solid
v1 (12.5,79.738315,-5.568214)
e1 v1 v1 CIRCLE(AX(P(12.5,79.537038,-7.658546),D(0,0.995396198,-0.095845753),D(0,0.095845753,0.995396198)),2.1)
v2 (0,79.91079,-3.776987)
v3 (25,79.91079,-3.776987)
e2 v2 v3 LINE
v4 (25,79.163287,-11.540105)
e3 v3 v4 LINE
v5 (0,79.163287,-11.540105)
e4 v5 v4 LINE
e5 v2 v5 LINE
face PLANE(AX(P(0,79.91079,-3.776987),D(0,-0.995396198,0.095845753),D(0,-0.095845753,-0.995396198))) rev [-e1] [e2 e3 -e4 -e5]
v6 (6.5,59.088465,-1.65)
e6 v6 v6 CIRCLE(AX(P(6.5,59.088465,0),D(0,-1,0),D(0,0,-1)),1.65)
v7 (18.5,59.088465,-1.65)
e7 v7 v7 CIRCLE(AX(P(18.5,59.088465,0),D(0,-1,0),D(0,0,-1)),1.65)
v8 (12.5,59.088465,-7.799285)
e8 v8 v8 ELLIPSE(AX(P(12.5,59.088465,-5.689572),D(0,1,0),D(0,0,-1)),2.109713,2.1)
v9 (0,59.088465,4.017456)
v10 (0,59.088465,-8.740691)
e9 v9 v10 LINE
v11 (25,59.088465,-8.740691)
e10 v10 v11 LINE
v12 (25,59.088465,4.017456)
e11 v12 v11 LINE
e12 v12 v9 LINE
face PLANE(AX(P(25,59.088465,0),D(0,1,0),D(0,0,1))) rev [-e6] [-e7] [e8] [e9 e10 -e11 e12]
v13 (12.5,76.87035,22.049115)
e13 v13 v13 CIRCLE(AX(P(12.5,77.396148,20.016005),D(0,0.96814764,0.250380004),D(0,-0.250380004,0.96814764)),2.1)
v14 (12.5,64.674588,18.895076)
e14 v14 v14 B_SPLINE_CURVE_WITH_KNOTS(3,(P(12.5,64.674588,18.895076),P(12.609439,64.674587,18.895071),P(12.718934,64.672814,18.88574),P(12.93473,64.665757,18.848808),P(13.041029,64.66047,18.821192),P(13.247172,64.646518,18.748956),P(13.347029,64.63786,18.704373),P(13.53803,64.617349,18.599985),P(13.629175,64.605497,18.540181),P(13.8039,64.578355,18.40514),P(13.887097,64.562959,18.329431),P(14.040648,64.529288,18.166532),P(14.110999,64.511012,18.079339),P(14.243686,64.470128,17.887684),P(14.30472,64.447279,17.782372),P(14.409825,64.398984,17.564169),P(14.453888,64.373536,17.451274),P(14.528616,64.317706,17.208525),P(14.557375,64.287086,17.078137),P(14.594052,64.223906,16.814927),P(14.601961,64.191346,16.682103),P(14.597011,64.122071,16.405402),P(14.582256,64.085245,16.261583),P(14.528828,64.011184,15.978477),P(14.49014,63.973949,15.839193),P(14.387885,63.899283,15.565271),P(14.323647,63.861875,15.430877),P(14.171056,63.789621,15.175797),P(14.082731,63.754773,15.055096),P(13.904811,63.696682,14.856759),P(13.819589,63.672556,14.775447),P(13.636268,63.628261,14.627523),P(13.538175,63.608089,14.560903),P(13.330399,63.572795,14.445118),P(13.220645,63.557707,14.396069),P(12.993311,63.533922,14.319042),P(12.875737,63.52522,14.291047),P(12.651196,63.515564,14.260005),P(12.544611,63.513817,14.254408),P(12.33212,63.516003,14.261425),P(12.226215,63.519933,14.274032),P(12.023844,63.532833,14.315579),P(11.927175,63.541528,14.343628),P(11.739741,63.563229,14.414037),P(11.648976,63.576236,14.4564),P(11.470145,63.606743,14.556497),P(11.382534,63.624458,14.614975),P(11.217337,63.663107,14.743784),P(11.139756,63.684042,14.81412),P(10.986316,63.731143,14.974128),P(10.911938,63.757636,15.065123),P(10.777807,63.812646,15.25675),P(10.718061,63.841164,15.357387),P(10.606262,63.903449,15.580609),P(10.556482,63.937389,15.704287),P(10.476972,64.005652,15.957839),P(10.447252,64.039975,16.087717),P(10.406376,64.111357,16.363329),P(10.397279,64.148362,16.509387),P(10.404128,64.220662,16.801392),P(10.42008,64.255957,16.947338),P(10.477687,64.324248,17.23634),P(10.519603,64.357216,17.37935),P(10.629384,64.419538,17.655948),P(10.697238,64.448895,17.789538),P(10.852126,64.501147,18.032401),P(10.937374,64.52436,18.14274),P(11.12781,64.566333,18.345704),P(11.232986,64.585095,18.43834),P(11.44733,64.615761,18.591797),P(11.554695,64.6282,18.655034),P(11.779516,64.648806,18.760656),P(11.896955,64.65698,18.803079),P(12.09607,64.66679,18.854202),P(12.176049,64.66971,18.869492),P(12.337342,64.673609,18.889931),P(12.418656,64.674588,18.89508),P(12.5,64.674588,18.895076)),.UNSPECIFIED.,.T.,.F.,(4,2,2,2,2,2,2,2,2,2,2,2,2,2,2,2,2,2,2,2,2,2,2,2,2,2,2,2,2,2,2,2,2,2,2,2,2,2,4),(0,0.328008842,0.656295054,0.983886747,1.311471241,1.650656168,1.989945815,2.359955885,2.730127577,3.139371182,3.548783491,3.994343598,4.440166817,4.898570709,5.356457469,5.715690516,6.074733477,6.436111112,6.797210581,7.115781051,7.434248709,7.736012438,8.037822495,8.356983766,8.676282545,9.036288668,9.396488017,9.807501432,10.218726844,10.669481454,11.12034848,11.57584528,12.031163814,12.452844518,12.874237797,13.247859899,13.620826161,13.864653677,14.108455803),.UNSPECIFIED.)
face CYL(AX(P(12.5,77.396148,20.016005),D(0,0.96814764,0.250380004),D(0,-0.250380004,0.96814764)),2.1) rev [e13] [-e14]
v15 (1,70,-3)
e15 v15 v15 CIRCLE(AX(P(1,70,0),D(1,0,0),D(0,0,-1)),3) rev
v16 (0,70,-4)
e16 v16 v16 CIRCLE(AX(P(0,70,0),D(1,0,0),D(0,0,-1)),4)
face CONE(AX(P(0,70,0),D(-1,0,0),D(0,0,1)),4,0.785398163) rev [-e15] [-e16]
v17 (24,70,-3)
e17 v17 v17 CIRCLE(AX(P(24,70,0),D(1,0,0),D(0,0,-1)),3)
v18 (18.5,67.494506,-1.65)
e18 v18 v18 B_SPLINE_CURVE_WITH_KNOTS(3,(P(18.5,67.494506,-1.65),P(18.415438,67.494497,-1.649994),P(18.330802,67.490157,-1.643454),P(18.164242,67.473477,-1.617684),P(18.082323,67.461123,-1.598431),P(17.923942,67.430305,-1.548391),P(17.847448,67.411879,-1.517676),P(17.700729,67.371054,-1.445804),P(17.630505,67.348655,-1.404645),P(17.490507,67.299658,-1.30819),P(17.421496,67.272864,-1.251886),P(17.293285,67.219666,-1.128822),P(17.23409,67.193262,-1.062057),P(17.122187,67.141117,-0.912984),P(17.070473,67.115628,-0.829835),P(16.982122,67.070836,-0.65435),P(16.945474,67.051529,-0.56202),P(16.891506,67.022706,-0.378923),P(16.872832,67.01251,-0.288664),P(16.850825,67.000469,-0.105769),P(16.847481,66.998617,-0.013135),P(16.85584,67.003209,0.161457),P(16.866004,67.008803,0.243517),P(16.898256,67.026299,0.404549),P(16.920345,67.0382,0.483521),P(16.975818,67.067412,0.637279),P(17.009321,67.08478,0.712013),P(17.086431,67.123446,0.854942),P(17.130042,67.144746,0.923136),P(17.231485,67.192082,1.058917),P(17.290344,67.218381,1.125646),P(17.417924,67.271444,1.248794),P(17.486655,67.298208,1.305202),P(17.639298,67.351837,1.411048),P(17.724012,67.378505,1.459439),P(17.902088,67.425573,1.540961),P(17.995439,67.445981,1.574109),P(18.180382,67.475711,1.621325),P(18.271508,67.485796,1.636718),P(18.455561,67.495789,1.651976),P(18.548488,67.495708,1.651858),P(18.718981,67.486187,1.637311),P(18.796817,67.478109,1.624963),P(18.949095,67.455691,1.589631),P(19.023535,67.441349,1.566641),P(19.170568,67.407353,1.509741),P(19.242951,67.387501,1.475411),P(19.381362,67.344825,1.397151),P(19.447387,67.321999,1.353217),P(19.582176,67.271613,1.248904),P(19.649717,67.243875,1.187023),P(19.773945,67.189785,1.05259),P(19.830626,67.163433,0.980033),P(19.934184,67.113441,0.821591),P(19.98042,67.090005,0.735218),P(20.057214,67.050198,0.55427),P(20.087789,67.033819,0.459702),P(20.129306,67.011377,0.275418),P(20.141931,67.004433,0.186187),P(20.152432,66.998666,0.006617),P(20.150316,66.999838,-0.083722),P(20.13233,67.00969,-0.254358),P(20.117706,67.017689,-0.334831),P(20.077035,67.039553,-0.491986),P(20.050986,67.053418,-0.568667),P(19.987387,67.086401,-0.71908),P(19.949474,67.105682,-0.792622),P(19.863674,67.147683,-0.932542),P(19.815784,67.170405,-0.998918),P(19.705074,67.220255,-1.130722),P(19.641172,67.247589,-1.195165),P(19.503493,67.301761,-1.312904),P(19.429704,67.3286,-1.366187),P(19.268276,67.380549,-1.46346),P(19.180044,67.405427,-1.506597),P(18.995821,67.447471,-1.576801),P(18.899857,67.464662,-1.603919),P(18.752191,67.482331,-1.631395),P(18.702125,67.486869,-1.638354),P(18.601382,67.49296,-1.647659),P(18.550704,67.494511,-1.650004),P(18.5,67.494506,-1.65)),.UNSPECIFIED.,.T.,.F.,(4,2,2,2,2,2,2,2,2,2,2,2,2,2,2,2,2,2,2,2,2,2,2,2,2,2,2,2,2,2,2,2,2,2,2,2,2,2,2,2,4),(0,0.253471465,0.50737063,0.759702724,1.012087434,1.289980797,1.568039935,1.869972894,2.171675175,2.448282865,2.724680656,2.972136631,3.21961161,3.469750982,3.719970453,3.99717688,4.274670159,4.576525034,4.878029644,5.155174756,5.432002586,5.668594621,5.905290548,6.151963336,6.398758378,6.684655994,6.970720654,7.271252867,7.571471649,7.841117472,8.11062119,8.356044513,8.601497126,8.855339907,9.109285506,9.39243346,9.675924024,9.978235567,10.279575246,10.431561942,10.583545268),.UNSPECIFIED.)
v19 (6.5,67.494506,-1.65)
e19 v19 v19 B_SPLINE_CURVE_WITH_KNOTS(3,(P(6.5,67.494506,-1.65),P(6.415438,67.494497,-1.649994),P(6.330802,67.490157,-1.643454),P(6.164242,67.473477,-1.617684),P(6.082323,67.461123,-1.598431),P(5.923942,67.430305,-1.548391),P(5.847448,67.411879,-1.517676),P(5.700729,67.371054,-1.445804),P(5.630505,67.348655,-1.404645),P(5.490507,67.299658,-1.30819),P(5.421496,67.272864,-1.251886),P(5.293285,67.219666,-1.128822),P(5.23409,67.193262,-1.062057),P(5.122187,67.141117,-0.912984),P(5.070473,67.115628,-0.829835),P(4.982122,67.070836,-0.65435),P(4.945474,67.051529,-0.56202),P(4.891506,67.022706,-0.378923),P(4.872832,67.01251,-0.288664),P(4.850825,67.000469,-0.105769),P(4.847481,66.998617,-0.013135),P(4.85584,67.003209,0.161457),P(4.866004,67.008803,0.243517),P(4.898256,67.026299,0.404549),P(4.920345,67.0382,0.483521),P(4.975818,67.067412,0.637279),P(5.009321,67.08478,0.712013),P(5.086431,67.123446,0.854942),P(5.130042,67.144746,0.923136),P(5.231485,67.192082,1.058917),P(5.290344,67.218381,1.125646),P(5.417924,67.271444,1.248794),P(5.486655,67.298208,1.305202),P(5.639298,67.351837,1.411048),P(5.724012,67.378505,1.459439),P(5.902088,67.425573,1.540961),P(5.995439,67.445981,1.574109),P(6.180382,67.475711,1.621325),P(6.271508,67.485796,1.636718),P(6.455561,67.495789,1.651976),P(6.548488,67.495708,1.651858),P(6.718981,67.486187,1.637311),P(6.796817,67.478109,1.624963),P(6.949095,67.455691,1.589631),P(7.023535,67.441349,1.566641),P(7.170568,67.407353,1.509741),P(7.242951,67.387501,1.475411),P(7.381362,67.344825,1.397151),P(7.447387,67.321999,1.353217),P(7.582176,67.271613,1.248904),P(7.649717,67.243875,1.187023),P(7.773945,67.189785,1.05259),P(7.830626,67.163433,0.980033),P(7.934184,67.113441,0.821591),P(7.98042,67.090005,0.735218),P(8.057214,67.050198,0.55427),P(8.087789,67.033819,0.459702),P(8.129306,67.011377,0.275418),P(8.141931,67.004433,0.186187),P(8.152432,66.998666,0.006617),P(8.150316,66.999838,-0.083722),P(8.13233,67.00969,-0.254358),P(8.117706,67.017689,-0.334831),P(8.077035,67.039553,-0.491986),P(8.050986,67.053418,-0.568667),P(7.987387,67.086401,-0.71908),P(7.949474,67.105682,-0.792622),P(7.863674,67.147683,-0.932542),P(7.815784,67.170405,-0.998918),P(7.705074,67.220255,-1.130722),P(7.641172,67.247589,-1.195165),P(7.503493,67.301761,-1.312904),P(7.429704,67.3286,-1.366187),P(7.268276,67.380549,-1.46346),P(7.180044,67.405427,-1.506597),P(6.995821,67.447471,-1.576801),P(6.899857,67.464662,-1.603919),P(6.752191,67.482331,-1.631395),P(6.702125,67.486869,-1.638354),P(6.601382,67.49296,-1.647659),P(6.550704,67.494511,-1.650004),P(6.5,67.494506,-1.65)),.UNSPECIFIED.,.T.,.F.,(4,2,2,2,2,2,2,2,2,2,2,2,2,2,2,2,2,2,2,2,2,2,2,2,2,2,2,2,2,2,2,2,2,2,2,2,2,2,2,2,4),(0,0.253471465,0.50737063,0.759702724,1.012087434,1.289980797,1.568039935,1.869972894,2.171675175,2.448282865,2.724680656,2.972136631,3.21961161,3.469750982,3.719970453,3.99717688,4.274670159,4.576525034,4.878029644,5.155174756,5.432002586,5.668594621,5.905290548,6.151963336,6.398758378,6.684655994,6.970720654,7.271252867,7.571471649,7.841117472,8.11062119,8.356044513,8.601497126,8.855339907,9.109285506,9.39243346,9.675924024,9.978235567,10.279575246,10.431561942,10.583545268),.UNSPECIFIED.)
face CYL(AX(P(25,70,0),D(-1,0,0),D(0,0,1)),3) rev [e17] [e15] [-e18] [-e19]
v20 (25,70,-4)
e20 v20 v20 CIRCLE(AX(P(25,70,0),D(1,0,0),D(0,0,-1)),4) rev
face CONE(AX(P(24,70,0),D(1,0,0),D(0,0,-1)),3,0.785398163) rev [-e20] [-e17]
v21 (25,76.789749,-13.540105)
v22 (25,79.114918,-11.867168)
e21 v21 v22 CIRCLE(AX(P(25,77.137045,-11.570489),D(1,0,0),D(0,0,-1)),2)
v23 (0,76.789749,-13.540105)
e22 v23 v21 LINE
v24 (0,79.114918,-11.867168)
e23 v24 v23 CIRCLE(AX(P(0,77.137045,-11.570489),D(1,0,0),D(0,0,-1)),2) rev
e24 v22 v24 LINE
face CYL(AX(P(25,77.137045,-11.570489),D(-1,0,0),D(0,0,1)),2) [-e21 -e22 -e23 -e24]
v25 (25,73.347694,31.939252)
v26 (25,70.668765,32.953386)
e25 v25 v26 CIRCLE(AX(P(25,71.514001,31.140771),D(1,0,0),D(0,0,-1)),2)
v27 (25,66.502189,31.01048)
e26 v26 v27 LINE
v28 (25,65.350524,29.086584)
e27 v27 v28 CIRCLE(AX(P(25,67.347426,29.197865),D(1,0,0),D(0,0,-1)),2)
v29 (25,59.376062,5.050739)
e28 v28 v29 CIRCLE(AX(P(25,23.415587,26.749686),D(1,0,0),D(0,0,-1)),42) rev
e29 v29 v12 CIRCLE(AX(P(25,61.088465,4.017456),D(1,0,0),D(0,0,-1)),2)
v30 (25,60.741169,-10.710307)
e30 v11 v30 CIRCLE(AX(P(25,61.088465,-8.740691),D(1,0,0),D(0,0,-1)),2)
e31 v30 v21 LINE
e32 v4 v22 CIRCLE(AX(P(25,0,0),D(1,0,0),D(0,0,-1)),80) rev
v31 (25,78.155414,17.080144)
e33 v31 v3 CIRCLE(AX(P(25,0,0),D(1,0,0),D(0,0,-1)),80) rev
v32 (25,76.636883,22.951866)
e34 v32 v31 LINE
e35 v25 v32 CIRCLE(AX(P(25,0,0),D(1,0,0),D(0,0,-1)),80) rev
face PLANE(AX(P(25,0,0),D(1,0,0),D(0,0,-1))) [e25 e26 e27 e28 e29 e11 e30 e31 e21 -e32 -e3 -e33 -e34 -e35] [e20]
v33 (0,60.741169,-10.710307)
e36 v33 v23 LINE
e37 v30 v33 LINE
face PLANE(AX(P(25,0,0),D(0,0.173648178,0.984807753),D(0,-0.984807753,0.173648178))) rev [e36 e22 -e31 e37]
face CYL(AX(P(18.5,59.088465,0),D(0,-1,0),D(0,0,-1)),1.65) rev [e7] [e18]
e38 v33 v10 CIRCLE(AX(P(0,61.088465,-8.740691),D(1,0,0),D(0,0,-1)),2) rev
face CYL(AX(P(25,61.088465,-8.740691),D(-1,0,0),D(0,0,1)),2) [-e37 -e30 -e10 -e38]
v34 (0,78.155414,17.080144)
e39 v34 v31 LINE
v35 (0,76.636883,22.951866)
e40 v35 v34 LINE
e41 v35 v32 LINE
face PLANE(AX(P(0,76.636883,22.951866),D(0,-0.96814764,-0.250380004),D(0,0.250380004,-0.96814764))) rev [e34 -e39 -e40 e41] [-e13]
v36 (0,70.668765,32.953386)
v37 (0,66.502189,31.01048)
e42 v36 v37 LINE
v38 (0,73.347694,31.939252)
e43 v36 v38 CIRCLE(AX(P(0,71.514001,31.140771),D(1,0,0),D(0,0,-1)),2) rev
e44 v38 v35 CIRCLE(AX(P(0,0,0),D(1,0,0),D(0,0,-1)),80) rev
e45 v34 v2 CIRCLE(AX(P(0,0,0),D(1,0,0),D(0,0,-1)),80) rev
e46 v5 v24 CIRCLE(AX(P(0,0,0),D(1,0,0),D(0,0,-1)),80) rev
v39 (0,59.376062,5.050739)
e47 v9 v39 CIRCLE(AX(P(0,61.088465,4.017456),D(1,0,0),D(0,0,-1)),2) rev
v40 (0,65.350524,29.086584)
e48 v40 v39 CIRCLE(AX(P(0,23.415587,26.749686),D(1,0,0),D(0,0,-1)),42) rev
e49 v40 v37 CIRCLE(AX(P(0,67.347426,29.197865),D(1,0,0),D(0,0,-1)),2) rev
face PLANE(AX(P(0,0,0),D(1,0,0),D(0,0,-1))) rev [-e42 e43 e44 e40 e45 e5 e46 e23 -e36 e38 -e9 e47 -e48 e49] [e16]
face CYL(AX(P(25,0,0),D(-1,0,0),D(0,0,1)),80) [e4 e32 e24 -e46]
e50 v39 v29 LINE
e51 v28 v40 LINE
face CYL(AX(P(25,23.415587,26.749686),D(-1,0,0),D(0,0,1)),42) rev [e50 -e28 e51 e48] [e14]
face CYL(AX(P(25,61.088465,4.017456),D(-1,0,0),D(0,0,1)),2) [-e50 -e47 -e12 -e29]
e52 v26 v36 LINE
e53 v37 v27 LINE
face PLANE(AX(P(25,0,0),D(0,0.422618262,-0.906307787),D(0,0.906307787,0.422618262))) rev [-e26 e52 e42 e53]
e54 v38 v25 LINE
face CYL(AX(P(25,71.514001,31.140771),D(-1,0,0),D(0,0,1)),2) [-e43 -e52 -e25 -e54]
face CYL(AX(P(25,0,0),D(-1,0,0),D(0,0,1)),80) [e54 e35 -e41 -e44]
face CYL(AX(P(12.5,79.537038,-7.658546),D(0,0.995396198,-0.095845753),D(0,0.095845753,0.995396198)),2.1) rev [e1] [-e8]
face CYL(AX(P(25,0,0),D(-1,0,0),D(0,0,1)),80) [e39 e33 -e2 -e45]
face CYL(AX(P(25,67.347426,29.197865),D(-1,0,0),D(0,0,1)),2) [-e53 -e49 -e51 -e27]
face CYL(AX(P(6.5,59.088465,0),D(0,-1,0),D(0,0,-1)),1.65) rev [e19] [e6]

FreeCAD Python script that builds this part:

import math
import FreeCAD as App
import Part
import Sketcher

V = App.Vector
Q = App.Units.Quantity


def edges_at(feature, points):
    """Names of the edges that pass closest to the given points."""
    edges = feature.Shape.Edges
    near = lambda p: min(range(len(edges)), key=lambda i: edges[i].distToShape(Part.Vertex(*p))[0])
    return sorted({f"Edge{near(p) + 1}" for p in points})

doc = App.newDocument("Part")
body = doc.addObject("PartDesign::Body", "Body")

# Sketch on YZ plane
sketch1 = doc.addObject("Sketcher::SketchObject", "Sketch")
body.addObject(sketch1)
sketch1.AttachmentSupport = (doc.YZ_Plane, [""])
sketch1.MapMode = "FlatFace"
sketch1.addGeometry(Part.LineSegment(V(72.5, 33.8, 0), V(65.3, 30.4, 0)), False)
sketch1.addGeometry(Part.ArcOfCircle(Part.Circle(V(23.4, 26.7, 0), V(0, 0, 1), 42), math.radians(-32), math.radians(5)), False)
sketch1.addGeometry(Part.LineSegment(V(59.1, 4.6, 0), V(59.1, -10.4, 0)), False)
sketch1.addGeometry(Part.LineSegment(V(59.1, -10.4, 0), V(78.8, -13.9, 0)), False)
sketch1.addGeometry(Part.ArcOfCircle(Part.Circle(V(0, 0, 0), V(0, 0, 1), 80), math.radians(-10), math.radians(25)), False)
sketch1.addGeometry(Part.Circle(V(70, 0, 0), V(0, 0, 1), 3), False)
sketch1.addConstraint(Sketcher.Constraint("Coincident", 0, 2, 1, 2))
sketch1.addConstraint(Sketcher.Constraint("Coincident", 1, 1, 2, 1))
sketch1.addConstraint(Sketcher.Constraint("Coincident", 2, 2, 3, 1))
sketch1.addConstraint(Sketcher.Constraint("Coincident", 3, 2, 4, 1))
sketch1.addConstraint(Sketcher.Constraint("Coincident", 4, 2, 0, 1))
sketch1.addConstraint(Sketcher.Constraint("Vertical", 2))
sketch1.addConstraint(Sketcher.Constraint("Coincident", 4, 3, -1, 1))
sketch1.addConstraint(Sketcher.Constraint("PointOnObject", 5, 3, -1))
sketch1.addConstraint(Sketcher.Constraint("Diameter", 5, 6.0))
sketch1.addConstraint(Sketcher.Constraint("Radius", 1, 42.0))
sketch1.addConstraint(Sketcher.Constraint("Radius", 4, 80.0))
sketch1.addConstraint(Sketcher.Constraint("DistanceY", 2, 2, 2, 1, 15.0))
sketch1.addConstraint(Sketcher.Constraint("Angle", 0, Q("-155 deg")))
sketch1.addConstraint(Sketcher.Constraint("Angle", 3, Q("-10 deg")))
sketch1.addConstraint(Sketcher.Constraint("Distance", 0, 8.0))
sketch1.addConstraint(Sketcher.Constraint("Distance", 3, 20.0))
sketch1.addConstraint(Sketcher.Constraint("DistanceX", -1, 1, 5, 3, 70.0))
sketch1.addConstraint(Sketcher.Constraint("DistanceX", -1, 1, 0, 2, 65.254161))
sketch1.addConstraint(Sketcher.Constraint("DistanceY", -1, 1, 1, 1, 4.581109))
pad1 = doc.addObject("PartDesign::Pad", "Pad")
body.addObject(pad1)
pad1.Profile = sketch1
pad1.Length = 25
doc.recompute()

fillet = doc.addObject("PartDesign::Fillet", "Fillet")
body.addObject(fillet)
fillet.Base = (pad1, edges_at(pad1, [
    (12.5, 59.088, 4.581),
    (12.5, 65.254, 30.429),
    (12.5, 72.505, 33.809),
    (12.5, 78.785, -13.892),
    (12.5, 59.088, -10.419),
]))
fillet.Radius = 2

# Sketch on YZ plane
sketch2 = doc.addObject("Sketcher::SketchObject", "Sketch001")
body.addObject(sketch2)
sketch2.AttachmentSupport = (doc.YZ_Plane, [""])
sketch2.MapMode = "FlatFace"
sketch2.AttachmentOffset = App.Placement(V(0, 0, 25), App.Rotation())
sketch2.addGeometry(Part.LineSegment(V(82, 18.1, 0), V(80.5, 24, 0)), False)
sketch2.addGeometry(Part.LineSegment(V(80.5, 24, 0), V(76.6, 23, 0)), False)
sketch2.addGeometry(Part.LineSegment(V(76.6, 23, 0), V(78.2, 17.1, 0)), False)
sketch2.addGeometry(Part.LineSegment(V(78.2, 17.1, 0), V(82, 18.1, 0)), False)
sketch2.addGeometry(Part.LineSegment(V(89.2, -11.5, 0), V(89.9, -3.8, 0)), False)
sketch2.addGeometry(Part.LineSegment(V(89.9, -3.8, 0), V(79.9, -3.8, 0)), False)
sketch2.addGeometry(Part.LineSegment(V(79.9, -3.8, 0), V(79.2, -11.5, 0)), False)
sketch2.addGeometry(Part.LineSegment(V(79.2, -11.5, 0), V(89.2, -11.5, 0)), False)
sketch2.addConstraint(Sketcher.Constraint("Coincident", 0, 2, 1, 1))
sketch2.addConstraint(Sketcher.Constraint("Coincident", 1, 2, 2, 1))
sketch2.addConstraint(Sketcher.Constraint("Coincident", 2, 2, 3, 1))
sketch2.addConstraint(Sketcher.Constraint("Coincident", 3, 2, 0, 1))
sketch2.addConstraint(Sketcher.Constraint("Coincident", 4, 2, 5, 1))
sketch2.addConstraint(Sketcher.Constraint("Coincident", 5, 2, 6, 1))
sketch2.addConstraint(Sketcher.Constraint("Coincident", 6, 2, 7, 1))
sketch2.addConstraint(Sketcher.Constraint("Coincident", 7, 2, 4, 1))
sketch2.addConstraint(Sketcher.Constraint("Horizontal", 5))
sketch2.addConstraint(Sketcher.Constraint("Horizontal", 7))
sketch2.addConstraint(Sketcher.Constraint("Perpendicular", 0, 1))
sketch2.addConstraint(Sketcher.Constraint("Perpendicular", 1, 2))
sketch2.addConstraint(Sketcher.Constraint("Perpendicular", 2, 3))
sketch2.addConstraint(Sketcher.Constraint("Parallel", 4, 6))
sketch2.addConstraint(Sketcher.Constraint("DistanceX", 5, 2, 5, 1, 10.0))
sketch2.addConstraint(Sketcher.Constraint("Distance", 1, 4.0))
sketch2.addConstraint(Sketcher.Constraint("Angle", 0, Q("104.5 deg")))
sketch2.addConstraint(Sketcher.Constraint("Angle", 4, Q("84.5 deg")))
sketch2.addConstraint(Sketcher.Constraint("DistanceX", -1, 1, 4, 2, 89.91079))
sketch2.addConstraint(Sketcher.Constraint("DistanceX", 1, 2, 2, 2, 1.518531))
sketch2.addConstraint(Sketcher.Constraint("DistanceY", 4, 2, 3, 2, 21.85865))
sketch2.addConstraint(Sketcher.Constraint("DistanceY", 6, 2, 2, 2, 28.620248))
sketch2.addConstraint(Sketcher.Constraint("DistanceX", -1, 1, 0, 2, 80.509474))
sketch2.addConstraint(Sketcher.Constraint("DistanceY", -1, 1, 0, 2, 23.953386))
pocket1 = doc.addObject("PartDesign::Pocket", "Pocket")
body.addObject(pocket1)
pocket1.Profile = sketch2
pocket1.Type = "ThroughAll"

# Sketch on an angled plane
sketch3 = doc.addObject("Sketcher::SketchObject", "Sketch002")
body.addObject(sketch3)
sketch3.Placement = App.Placement(V(0, 77.396148, 20.016005), App.Rotation(V(1, 0, 0), V(0, 0.250380004, -0.96814764), V(0, 0.96814764, 0.250380004), "ZXY"))
sketch3.addGeometry(Part.Circle(V(12.5, 0, 0), V(0, 0, 1), 2.1), False)
sketch3.addConstraint(Sketcher.Constraint("PointOnObject", 0, 3, -1))
sketch3.addConstraint(Sketcher.Constraint("Diameter", 0, 4.2))
sketch3.addConstraint(Sketcher.Constraint("DistanceX", -1, 1, 0, 3, 12.5))
doc.recompute()
hole = doc.addObject("PartDesign::Hole", "Hole")
body.addObject(hole)
hole.Profile = sketch3
hole.ThreadType = "None"
hole.Diameter = 4.2
hole.DepthType = "Dimension"
hole.Depth = 22.4
hole.DrillPoint = "Angled"
hole.DrillPointAngle = 118

# Sketch on an angled plane
sketch4 = doc.addObject("Sketcher::SketchObject", "Sketch003")
body.addObject(sketch4)
sketch4.Placement = App.Placement(V(0, 79.537038, -7.658546), App.Rotation(V(1, 0, 0), V(0, -0.095845753, -0.995396198), V(0, 0.995396198, -0.095845753), "ZXY"))
sketch4.addGeometry(Part.Circle(V(12.5, 0, 0), V(0, 0, 1), 2.1), False)
sketch4.addConstraint(Sketcher.Constraint("PointOnObject", 0, 3, -1))
sketch4.addConstraint(Sketcher.Constraint("Diameter", 0, 4.2))
sketch4.addConstraint(Sketcher.Constraint("DistanceX", -1, 1, 0, 3, 12.5))
doc.recompute()
hole2 = doc.addObject("PartDesign::Hole", "Hole001")
body.addObject(hole2)
hole2.Profile = sketch4
hole2.ThreadType = "None"
hole2.Diameter = 4.2
hole2.DepthType = "Dimension"
hole2.Depth = 22.4
hole2.DrillPoint = "Angled"
hole2.DrillPointAngle = 118

# Sketch on XZ plane
sketch5 = doc.addObject("Sketcher::SketchObject", "Sketch004")
body.addObject(sketch5)
sketch5.AttachmentSupport = (doc.XZ_Plane, [""])
sketch5.MapMode = "FlatFace"
sketch5.AttachmentOffset = App.Placement(V(0, 0, -59.088465), App.Rotation())
sketch5.addGeometry(Part.Circle(V(6.5, 0, 0), V(0, 0, 1), 1.6), False)
sketch5.addGeometry(Part.Circle(V(18.5, 0, 0), V(0, 0, 1), 1.6), False)
sketch5.addConstraint(Sketcher.Constraint("Equal", 0, 1))
sketch5.addConstraint(Sketcher.Constraint("PointOnObject", 0, 3, -1))
sketch5.addConstraint(Sketcher.Constraint("PointOnObject", 1, 3, -1))
sketch5.addConstraint(Sketcher.Constraint("Diameter", 0, 3.3))
sketch5.addConstraint(Sketcher.Constraint("DistanceX", 0, 3, 1, 3, 12.0))
sketch5.addConstraint(Sketcher.Constraint("DistanceX", -1, 1, 0, 3, 6.5))
doc.recompute()
hole3 = doc.addObject("PartDesign::Hole", "Hole002")
body.addObject(hole3)
hole3.Profile = sketch5
hole3.ThreadType = "None"
hole3.Diameter = 3.3
hole3.DepthType = "Dimension"
hole3.Depth = 10.1
hole3.DrillPoint = "Angled"
hole3.DrillPointAngle = 118
doc.recompute()

chamfer = doc.addObject("PartDesign::Chamfer", "Chamfer")
body.addObject(chamfer)
chamfer.Base = (hole3, edges_at(hole3, [(25, 70, 3), (0, 70, 3)]))
chamfer.Size = 1

doc.recompute()
